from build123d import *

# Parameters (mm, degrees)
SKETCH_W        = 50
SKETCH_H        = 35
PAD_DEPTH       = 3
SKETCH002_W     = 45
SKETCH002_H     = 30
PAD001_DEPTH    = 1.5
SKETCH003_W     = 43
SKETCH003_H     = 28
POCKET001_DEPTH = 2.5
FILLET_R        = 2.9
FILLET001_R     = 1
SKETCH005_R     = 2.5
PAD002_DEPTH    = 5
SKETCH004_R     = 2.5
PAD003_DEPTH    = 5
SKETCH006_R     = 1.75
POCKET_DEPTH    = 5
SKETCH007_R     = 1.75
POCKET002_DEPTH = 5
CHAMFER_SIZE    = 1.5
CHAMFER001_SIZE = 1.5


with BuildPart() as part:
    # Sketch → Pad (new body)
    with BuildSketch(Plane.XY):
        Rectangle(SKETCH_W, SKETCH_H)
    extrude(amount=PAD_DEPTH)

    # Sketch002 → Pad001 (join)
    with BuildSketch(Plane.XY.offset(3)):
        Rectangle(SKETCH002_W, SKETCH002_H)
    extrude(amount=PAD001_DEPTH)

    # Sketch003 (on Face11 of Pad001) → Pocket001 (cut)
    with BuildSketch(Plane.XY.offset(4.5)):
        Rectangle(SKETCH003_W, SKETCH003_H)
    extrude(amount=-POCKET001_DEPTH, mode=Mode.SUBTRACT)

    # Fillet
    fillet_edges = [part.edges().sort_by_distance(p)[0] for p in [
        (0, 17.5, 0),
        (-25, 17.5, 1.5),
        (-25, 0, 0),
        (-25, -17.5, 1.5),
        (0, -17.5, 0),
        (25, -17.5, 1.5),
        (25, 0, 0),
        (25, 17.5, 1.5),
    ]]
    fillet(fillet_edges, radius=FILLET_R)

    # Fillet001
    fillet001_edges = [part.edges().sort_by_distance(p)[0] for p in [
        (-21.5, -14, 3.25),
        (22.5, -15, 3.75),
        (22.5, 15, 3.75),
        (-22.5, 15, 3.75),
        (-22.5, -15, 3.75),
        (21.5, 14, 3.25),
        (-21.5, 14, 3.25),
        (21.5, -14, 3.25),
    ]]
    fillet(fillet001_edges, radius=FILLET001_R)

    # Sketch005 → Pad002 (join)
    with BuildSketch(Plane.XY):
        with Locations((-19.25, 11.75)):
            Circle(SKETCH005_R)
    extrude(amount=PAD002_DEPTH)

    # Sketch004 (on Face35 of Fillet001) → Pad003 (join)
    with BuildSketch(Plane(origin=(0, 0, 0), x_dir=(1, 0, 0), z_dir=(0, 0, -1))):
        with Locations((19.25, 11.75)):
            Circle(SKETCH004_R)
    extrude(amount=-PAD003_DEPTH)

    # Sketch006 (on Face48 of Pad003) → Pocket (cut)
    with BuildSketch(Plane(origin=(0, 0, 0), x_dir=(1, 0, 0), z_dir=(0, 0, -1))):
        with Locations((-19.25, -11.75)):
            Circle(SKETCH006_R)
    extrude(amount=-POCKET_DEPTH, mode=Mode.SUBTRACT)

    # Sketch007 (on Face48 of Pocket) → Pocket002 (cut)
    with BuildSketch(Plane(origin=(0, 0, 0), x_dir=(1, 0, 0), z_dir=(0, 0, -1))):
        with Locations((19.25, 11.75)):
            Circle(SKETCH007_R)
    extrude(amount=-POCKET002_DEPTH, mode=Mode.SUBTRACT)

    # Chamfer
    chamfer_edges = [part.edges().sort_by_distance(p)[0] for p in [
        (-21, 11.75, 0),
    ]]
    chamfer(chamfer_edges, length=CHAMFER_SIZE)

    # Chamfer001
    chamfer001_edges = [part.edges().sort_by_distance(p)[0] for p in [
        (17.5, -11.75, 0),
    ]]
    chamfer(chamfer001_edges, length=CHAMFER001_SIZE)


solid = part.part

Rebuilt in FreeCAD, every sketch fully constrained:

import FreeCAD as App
import Part
import Sketcher
from FreeCAD import Vector


def edges_at(feature, points):
    """Names of the edges that pass closest to the given points."""
    edges = feature.Shape.Edges
    near = lambda p: min(range(len(edges)), key=lambda i: edges[i].distToShape(Part.Vertex(*p))[0])
    return sorted({f"Edge{near(p) + 1}" for p in points})

doc = App.newDocument("Part")
params = doc.addObject("Spreadsheet::Sheet", "Params")
for row, (alias, value) in enumerate([
    ("sketch1_width", "50 mm"),
    ("sketch1_height", "35 mm"),
    ("pad1_length", "3 mm"),
    ("sketch2_width", "45 mm"),
    ("sketch2_height", "30 mm"),
    ("pad2_length", "1.5 mm"),
    ("sketch3_width", "43 mm"),
    ("sketch3_height", "28 mm"),
    ("pocket1_length", "2.5 mm"),
    ("fillet_radius", "2.9 mm"),
    ("fillet2_radius", "1 mm"),
    ("sketch4_diameter", "5 mm"),
    ("pad3_length", "5 mm"),
    ("sketch5_diameter", "5 mm"),
    ("pad4_length", "5 mm"),
    ("sketch6_diameter", "3.5 mm"),
    ("pocket2_length", "5 mm"),
    ("sketch7_diameter", "3.5 mm"),
    ("pocket3_length", "5 mm"),
    ("chamfer_size", "1.5 mm"),
    ("chamfer2_size", "1.5 mm"),
], start=1):
    params.set(f"A{row}", alias)
    params.set(f"B{row}", "=" + value)
    params.setAlias(f"B{row}", alias)

body = doc.addObject("PartDesign::Body", "Body")

# Sketch on XY plane
sketch1 = doc.addObject("Sketcher::SketchObject", "Sketch")
body.addObject(sketch1)
sketch1.AttachmentSupport = (doc.XY_Plane, [""])
sketch1.MapMode = "FlatFace"
sketch1.addGeometry(Part.LineSegment(Vector(-25, 18, 0), Vector(-25, -18, 0)), False)
sketch1.addGeometry(Part.LineSegment(Vector(-25, -18, 0), Vector(25, -18, 0)), False)
sketch1.addGeometry(Part.LineSegment(Vector(25, -18, 0), Vector(25, 18, 0)), False)
sketch1.addGeometry(Part.LineSegment(Vector(25, 18, 0), Vector(-25, 18, 0)), False)
sketch1.addConstraint(Sketcher.Constraint("Coincident", 0, 2, 1, 1))
sketch1.addConstraint(Sketcher.Constraint("Coincident", 1, 2, 2, 1))
sketch1.addConstraint(Sketcher.Constraint("Coincident", 2, 2, 3, 1))
sketch1.addConstraint(Sketcher.Constraint("Coincident", 3, 2, 0, 1))
sketch1.addConstraint(Sketcher.Constraint("Vertical", 0))
sketch1.addConstraint(Sketcher.Constraint("Horizontal", 1))
sketch1.addConstraint(Sketcher.Constraint("Vertical", 2))
sketch1.addConstraint(Sketcher.Constraint("Horizontal", 3))
sketch1.addConstraint(Sketcher.Constraint("Symmetric", 0, 2, 2, 2, -1, 1))
sketch1.addConstraint(Sketcher.Constraint("DistanceX", 1, 1, 1, 2, 50.0))
sketch1.addConstraint(Sketcher.Constraint("DistanceY", 0, 2, 0, 1, 35.0))
sketch1.setExpression("Constraints[9]", "Params.sketch1_width")
sketch1.setExpression("Constraints[10]", "Params.sketch1_height")
pad1 = doc.addObject("PartDesign::Pad", "Pad")
body.addObject(pad1)
pad1.Profile = sketch1
pad1.setExpression("Length", "Params.pad1_length")

# Sketch on XY plane
sketch2 = doc.addObject("Sketcher::SketchObject", "Sketch001")
body.addObject(sketch2)
sketch2.AttachmentSupport = (doc.XY_Plane, [""])
sketch2.MapMode = "FlatFace"
sketch2.AttachmentOffset = App.Placement(Vector(0, 0, 3), App.Rotation())
sketch2.addGeometry(Part.LineSegment(Vector(-22, 15, 0), Vector(-22, -15, 0)), False)
sketch2.addGeometry(Part.LineSegment(Vector(-22, -15, 0), Vector(22, -15, 0)), False)
sketch2.addGeometry(Part.LineSegment(Vector(22, -15, 0), Vector(22, 15, 0)), False)
sketch2.addGeometry(Part.LineSegment(Vector(22, 15, 0), Vector(-22, 15, 0)), False)
sketch2.addConstraint(Sketcher.Constraint("Coincident", 0, 2, 1, 1))
sketch2.addConstraint(Sketcher.Constraint("Coincident", 1, 2, 2, 1))
sketch2.addConstraint(Sketcher.Constraint("Coincident", 2, 2, 3, 1))
sketch2.addConstraint(Sketcher.Constraint("Coincident", 3, 2, 0, 1))
sketch2.addConstraint(Sketcher.Constraint("Vertical", 0))
sketch2.addConstraint(Sketcher.Constraint("Horizontal", 1))
sketch2.addConstraint(Sketcher.Constraint("Vertical", 2))
sketch2.addConstraint(Sketcher.Constraint("Horizontal", 3))
sketch2.addConstraint(Sketcher.Constraint("Symmetric", 0, 2, 2, 2, -1, 1))
sketch2.addConstraint(Sketcher.Constraint("DistanceX", 1, 1, 1, 2, 45.0))
sketch2.addConstraint(Sketcher.Constraint("DistanceY", 0, 2, 0, 1, 30.0))
sketch2.setExpression("Constraints[9]", "Params.sketch2_width")
sketch2.setExpression("Constraints[10]", "Params.sketch2_height")
pad2 = doc.addObject("PartDesign::Pad", "Pad001")
body.addObject(pad2)
pad2.Profile = sketch2
pad2.setExpression("Length", "Params.pad2_length")

# Sketch on XY plane
sketch3 = doc.addObject("Sketcher::SketchObject", "Sketch002")
body.addObject(sketch3)
sketch3.AttachmentSupport = (doc.XY_Plane, [""])
sketch3.MapMode = "FlatFace"
sketch3.AttachmentOffset = App.Placement(Vector(0, 0, 4.5), App.Rotation())
sketch3.addGeometry(Part.LineSegment(Vector(-22, 14, 0), Vector(-22, -14, 0)), False)
sketch3.addGeometry(Part.LineSegment(Vector(-22, -14, 0), Vector(22, -14, 0)), False)
sketch3.addGeometry(Part.LineSegment(Vector(22, -14, 0), Vector(22, 14, 0)), False)
sketch3.addGeometry(Part.LineSegment(Vector(22, 14, 0), Vector(-22, 14, 0)), False)
sketch3.addConstraint(Sketcher.Constraint("Coincident", 0, 2, 1, 1))
sketch3.addConstraint(Sketcher.Constraint("Coincident", 1, 2, 2, 1))
sketch3.addConstraint(Sketcher.Constraint("Coincident", 2, 2, 3, 1))
sketch3.addConstraint(Sketcher.Constraint("Coincident", 3, 2, 0, 1))
sketch3.addConstraint(Sketcher.Constraint("Vertical", 0))
sketch3.addConstraint(Sketcher.Constraint("Horizontal", 1))
sketch3.addConstraint(Sketcher.Constraint("Vertical", 2))
sketch3.addConstraint(Sketcher.Constraint("Horizontal", 3))
sketch3.addConstraint(Sketcher.Constraint("Symmetric", 0, 2, 2, 2, -1, 1))
sketch3.addConstraint(Sketcher.Constraint("DistanceX", 1, 1, 1, 2, 43.0))
sketch3.addConstraint(Sketcher.Constraint("DistanceY", 0, 2, 0, 1, 28.0))
sketch3.setExpression("Constraints[9]", "Params.sketch3_width")
sketch3.setExpression("Constraints[10]", "Params.sketch3_height")
pocket1 = doc.addObject("PartDesign::Pocket", "Pocket")
body.addObject(pocket1)
pocket1.Profile = sketch3
pocket1.setExpression("Length", "Params.pocket1_length")
doc.recompute()

fillet = doc.addObject("PartDesign::Fillet", "Fillet")
body.addObject(fillet)
fillet.Base = (pocket1, edges_at(pocket1, [
    (0, 17.5, 0),
    (-25, 17.5, 1.5),
    (-25, 0, 0),
    (-25, -17.5, 1.5),
    (0, -17.5, 0),
    (25, -17.5, 1.5),
    (25, 0, 0),
    (25, 17.5, 1.5),
]))
fillet.setExpression("Radius", "Params.fillet_radius")
doc.recompute()

fillet2 = doc.addObject("PartDesign::Fillet", "Fillet001")
body.addObject(fillet2)
fillet2.Base = (fillet, edges_at(fillet, [
    (-21.5, -14, 3.25),
    (22.5, -15, 3.75),
    (22.5, 15, 3.75),
    (-22.5, 15, 3.75),
    (-22.5, -15, 3.75),
    (21.5, 14, 3.25),
    (-21.5, 14, 3.25),
    (21.5, -14, 3.25),
]))
fillet2.setExpression("Radius", "Params.fillet2_radius")

# Sketch on XY plane
sketch4 = doc.addObject("Sketcher::SketchObject", "Sketch003")
body.addObject(sketch4)
sketch4.AttachmentSupport = (doc.XY_Plane, [""])
sketch4.MapMode = "FlatFace"
sketch4.addGeometry(Part.Circle(Vector(-19.2, 11.8, 0), Vector(0, 0, 1), 2.5), False)
sketch4.addConstraint(Sketcher.Constraint("Diameter", 0, 5.0))
sketch4.addConstraint(Sketcher.Constraint("DistanceX", 0, 3, -1, 1, 19.25))
sketch4.addConstraint(Sketcher.Constraint("DistanceY", -1, 1, 0, 3, 11.75))
sketch4.setExpression("Constraints[0]", "Params.sketch4_diameter")
pad3 = doc.addObject("PartDesign::Pad", "Pad002")
body.addObject(pad3)
pad3.Profile = sketch4
pad3.setExpression("Length", "Params.pad3_length")

# Sketch on XY plane
sketch5 = doc.addObject("Sketcher::SketchObject", "Sketch004")
body.addObject(sketch5)
sketch5.AttachmentSupport = (doc.XY_Plane, [""])
sketch5.MapMode = "FlatFace"
sketch5.addGeometry(Part.Circle(Vector(19.2, -11.8, 0), Vector(0, 0, 1), 2.5), False)
sketch5.addConstraint(Sketcher.Constraint("Diameter", 0, 5.0))
sketch5.addConstraint(Sketcher.Constraint("DistanceX", -1, 1, 0, 3, 19.25))
sketch5.addConstraint(Sketcher.Constraint("DistanceY", 0, 3, -1, 1, 11.75))
sketch5.setExpression("Constraints[0]", "Params.sketch5_diameter")
pad4 = doc.addObject("PartDesign::Pad", "Pad003")
body.addObject(pad4)
pad4.Profile = sketch5
pad4.setExpression("Length", "Params.pad4_length")

# Sketch on XY plane
sketch6 = doc.addObject("Sketcher::SketchObject", "Sketch005")
body.addObject(sketch6)
sketch6.AttachmentSupport = (doc.XY_Plane, [""])
sketch6.MapMode = "FlatFace"
sketch6.addGeometry(Part.Circle(Vector(-19.2, 11.8, 0), Vector(0, 0, 1), 1.8), False)
sketch6.addConstraint(Sketcher.Constraint("Diameter", 0, 3.5))
sketch6.addConstraint(Sketcher.Constraint("DistanceX", 0, 3, -1, 1, 19.25))
sketch6.addConstraint(Sketcher.Constraint("DistanceY", -1, 1, 0, 3, 11.75))
sketch6.setExpression("Constraints[0]", "Params.sketch6_diameter")
pocket2 = doc.addObject("PartDesign::Pocket", "Pocket001")
body.addObject(pocket2)
pocket2.Profile = sketch6
pocket2.setExpression("Length", "Params.pocket2_length")
pocket2.Reversed = True

# Sketch on XY plane
sketch7 = doc.addObject("Sketcher::SketchObject", "Sketch006")
body.addObject(sketch7)
sketch7.AttachmentSupport = (doc.XY_Plane, [""])
sketch7.MapMode = "FlatFace"
sketch7.addGeometry(Part.Circle(Vector(19.2, -11.8, 0), Vector(0, 0, 1), 1.8), False)
sketch7.addConstraint(Sketcher.Constraint("Diameter", 0, 3.5))
sketch7.addConstraint(Sketcher.Constraint("DistanceX", -1, 1, 0, 3, 19.25))
sketch7.addConstraint(Sketcher.Constraint("DistanceY", 0, 3, -1, 1, 11.75))
sketch7.setExpression("Constraints[0]", "Params.sketch7_diameter")
pocket3 = doc.addObject("PartDesign::Pocket", "Pocket002")
body.addObject(pocket3)
pocket3.Profile = sketch7
pocket3.setExpression("Length", "Params.pocket3_length")
pocket3.Reversed = True
doc.recompute()

chamfer = doc.addObject("PartDesign::Chamfer", "Chamfer")
body.addObject(chamfer)
chamfer.Base = (pocket3, edges_at(pocket3, [(-21, 11.75, 0)]))
chamfer.setExpression("Size", "Params.chamfer_size")
doc.recompute()

chamfer2 = doc.addObject("PartDesign::Chamfer", "Chamfer001")
body.addObject(chamfer2)
chamfer2.Base = (chamfer, edges_at(chamfer, [(17.5, -11.75, 0)]))
chamfer2.setExpression("Size", "Params.chamfer2_size")

doc.recompute()
